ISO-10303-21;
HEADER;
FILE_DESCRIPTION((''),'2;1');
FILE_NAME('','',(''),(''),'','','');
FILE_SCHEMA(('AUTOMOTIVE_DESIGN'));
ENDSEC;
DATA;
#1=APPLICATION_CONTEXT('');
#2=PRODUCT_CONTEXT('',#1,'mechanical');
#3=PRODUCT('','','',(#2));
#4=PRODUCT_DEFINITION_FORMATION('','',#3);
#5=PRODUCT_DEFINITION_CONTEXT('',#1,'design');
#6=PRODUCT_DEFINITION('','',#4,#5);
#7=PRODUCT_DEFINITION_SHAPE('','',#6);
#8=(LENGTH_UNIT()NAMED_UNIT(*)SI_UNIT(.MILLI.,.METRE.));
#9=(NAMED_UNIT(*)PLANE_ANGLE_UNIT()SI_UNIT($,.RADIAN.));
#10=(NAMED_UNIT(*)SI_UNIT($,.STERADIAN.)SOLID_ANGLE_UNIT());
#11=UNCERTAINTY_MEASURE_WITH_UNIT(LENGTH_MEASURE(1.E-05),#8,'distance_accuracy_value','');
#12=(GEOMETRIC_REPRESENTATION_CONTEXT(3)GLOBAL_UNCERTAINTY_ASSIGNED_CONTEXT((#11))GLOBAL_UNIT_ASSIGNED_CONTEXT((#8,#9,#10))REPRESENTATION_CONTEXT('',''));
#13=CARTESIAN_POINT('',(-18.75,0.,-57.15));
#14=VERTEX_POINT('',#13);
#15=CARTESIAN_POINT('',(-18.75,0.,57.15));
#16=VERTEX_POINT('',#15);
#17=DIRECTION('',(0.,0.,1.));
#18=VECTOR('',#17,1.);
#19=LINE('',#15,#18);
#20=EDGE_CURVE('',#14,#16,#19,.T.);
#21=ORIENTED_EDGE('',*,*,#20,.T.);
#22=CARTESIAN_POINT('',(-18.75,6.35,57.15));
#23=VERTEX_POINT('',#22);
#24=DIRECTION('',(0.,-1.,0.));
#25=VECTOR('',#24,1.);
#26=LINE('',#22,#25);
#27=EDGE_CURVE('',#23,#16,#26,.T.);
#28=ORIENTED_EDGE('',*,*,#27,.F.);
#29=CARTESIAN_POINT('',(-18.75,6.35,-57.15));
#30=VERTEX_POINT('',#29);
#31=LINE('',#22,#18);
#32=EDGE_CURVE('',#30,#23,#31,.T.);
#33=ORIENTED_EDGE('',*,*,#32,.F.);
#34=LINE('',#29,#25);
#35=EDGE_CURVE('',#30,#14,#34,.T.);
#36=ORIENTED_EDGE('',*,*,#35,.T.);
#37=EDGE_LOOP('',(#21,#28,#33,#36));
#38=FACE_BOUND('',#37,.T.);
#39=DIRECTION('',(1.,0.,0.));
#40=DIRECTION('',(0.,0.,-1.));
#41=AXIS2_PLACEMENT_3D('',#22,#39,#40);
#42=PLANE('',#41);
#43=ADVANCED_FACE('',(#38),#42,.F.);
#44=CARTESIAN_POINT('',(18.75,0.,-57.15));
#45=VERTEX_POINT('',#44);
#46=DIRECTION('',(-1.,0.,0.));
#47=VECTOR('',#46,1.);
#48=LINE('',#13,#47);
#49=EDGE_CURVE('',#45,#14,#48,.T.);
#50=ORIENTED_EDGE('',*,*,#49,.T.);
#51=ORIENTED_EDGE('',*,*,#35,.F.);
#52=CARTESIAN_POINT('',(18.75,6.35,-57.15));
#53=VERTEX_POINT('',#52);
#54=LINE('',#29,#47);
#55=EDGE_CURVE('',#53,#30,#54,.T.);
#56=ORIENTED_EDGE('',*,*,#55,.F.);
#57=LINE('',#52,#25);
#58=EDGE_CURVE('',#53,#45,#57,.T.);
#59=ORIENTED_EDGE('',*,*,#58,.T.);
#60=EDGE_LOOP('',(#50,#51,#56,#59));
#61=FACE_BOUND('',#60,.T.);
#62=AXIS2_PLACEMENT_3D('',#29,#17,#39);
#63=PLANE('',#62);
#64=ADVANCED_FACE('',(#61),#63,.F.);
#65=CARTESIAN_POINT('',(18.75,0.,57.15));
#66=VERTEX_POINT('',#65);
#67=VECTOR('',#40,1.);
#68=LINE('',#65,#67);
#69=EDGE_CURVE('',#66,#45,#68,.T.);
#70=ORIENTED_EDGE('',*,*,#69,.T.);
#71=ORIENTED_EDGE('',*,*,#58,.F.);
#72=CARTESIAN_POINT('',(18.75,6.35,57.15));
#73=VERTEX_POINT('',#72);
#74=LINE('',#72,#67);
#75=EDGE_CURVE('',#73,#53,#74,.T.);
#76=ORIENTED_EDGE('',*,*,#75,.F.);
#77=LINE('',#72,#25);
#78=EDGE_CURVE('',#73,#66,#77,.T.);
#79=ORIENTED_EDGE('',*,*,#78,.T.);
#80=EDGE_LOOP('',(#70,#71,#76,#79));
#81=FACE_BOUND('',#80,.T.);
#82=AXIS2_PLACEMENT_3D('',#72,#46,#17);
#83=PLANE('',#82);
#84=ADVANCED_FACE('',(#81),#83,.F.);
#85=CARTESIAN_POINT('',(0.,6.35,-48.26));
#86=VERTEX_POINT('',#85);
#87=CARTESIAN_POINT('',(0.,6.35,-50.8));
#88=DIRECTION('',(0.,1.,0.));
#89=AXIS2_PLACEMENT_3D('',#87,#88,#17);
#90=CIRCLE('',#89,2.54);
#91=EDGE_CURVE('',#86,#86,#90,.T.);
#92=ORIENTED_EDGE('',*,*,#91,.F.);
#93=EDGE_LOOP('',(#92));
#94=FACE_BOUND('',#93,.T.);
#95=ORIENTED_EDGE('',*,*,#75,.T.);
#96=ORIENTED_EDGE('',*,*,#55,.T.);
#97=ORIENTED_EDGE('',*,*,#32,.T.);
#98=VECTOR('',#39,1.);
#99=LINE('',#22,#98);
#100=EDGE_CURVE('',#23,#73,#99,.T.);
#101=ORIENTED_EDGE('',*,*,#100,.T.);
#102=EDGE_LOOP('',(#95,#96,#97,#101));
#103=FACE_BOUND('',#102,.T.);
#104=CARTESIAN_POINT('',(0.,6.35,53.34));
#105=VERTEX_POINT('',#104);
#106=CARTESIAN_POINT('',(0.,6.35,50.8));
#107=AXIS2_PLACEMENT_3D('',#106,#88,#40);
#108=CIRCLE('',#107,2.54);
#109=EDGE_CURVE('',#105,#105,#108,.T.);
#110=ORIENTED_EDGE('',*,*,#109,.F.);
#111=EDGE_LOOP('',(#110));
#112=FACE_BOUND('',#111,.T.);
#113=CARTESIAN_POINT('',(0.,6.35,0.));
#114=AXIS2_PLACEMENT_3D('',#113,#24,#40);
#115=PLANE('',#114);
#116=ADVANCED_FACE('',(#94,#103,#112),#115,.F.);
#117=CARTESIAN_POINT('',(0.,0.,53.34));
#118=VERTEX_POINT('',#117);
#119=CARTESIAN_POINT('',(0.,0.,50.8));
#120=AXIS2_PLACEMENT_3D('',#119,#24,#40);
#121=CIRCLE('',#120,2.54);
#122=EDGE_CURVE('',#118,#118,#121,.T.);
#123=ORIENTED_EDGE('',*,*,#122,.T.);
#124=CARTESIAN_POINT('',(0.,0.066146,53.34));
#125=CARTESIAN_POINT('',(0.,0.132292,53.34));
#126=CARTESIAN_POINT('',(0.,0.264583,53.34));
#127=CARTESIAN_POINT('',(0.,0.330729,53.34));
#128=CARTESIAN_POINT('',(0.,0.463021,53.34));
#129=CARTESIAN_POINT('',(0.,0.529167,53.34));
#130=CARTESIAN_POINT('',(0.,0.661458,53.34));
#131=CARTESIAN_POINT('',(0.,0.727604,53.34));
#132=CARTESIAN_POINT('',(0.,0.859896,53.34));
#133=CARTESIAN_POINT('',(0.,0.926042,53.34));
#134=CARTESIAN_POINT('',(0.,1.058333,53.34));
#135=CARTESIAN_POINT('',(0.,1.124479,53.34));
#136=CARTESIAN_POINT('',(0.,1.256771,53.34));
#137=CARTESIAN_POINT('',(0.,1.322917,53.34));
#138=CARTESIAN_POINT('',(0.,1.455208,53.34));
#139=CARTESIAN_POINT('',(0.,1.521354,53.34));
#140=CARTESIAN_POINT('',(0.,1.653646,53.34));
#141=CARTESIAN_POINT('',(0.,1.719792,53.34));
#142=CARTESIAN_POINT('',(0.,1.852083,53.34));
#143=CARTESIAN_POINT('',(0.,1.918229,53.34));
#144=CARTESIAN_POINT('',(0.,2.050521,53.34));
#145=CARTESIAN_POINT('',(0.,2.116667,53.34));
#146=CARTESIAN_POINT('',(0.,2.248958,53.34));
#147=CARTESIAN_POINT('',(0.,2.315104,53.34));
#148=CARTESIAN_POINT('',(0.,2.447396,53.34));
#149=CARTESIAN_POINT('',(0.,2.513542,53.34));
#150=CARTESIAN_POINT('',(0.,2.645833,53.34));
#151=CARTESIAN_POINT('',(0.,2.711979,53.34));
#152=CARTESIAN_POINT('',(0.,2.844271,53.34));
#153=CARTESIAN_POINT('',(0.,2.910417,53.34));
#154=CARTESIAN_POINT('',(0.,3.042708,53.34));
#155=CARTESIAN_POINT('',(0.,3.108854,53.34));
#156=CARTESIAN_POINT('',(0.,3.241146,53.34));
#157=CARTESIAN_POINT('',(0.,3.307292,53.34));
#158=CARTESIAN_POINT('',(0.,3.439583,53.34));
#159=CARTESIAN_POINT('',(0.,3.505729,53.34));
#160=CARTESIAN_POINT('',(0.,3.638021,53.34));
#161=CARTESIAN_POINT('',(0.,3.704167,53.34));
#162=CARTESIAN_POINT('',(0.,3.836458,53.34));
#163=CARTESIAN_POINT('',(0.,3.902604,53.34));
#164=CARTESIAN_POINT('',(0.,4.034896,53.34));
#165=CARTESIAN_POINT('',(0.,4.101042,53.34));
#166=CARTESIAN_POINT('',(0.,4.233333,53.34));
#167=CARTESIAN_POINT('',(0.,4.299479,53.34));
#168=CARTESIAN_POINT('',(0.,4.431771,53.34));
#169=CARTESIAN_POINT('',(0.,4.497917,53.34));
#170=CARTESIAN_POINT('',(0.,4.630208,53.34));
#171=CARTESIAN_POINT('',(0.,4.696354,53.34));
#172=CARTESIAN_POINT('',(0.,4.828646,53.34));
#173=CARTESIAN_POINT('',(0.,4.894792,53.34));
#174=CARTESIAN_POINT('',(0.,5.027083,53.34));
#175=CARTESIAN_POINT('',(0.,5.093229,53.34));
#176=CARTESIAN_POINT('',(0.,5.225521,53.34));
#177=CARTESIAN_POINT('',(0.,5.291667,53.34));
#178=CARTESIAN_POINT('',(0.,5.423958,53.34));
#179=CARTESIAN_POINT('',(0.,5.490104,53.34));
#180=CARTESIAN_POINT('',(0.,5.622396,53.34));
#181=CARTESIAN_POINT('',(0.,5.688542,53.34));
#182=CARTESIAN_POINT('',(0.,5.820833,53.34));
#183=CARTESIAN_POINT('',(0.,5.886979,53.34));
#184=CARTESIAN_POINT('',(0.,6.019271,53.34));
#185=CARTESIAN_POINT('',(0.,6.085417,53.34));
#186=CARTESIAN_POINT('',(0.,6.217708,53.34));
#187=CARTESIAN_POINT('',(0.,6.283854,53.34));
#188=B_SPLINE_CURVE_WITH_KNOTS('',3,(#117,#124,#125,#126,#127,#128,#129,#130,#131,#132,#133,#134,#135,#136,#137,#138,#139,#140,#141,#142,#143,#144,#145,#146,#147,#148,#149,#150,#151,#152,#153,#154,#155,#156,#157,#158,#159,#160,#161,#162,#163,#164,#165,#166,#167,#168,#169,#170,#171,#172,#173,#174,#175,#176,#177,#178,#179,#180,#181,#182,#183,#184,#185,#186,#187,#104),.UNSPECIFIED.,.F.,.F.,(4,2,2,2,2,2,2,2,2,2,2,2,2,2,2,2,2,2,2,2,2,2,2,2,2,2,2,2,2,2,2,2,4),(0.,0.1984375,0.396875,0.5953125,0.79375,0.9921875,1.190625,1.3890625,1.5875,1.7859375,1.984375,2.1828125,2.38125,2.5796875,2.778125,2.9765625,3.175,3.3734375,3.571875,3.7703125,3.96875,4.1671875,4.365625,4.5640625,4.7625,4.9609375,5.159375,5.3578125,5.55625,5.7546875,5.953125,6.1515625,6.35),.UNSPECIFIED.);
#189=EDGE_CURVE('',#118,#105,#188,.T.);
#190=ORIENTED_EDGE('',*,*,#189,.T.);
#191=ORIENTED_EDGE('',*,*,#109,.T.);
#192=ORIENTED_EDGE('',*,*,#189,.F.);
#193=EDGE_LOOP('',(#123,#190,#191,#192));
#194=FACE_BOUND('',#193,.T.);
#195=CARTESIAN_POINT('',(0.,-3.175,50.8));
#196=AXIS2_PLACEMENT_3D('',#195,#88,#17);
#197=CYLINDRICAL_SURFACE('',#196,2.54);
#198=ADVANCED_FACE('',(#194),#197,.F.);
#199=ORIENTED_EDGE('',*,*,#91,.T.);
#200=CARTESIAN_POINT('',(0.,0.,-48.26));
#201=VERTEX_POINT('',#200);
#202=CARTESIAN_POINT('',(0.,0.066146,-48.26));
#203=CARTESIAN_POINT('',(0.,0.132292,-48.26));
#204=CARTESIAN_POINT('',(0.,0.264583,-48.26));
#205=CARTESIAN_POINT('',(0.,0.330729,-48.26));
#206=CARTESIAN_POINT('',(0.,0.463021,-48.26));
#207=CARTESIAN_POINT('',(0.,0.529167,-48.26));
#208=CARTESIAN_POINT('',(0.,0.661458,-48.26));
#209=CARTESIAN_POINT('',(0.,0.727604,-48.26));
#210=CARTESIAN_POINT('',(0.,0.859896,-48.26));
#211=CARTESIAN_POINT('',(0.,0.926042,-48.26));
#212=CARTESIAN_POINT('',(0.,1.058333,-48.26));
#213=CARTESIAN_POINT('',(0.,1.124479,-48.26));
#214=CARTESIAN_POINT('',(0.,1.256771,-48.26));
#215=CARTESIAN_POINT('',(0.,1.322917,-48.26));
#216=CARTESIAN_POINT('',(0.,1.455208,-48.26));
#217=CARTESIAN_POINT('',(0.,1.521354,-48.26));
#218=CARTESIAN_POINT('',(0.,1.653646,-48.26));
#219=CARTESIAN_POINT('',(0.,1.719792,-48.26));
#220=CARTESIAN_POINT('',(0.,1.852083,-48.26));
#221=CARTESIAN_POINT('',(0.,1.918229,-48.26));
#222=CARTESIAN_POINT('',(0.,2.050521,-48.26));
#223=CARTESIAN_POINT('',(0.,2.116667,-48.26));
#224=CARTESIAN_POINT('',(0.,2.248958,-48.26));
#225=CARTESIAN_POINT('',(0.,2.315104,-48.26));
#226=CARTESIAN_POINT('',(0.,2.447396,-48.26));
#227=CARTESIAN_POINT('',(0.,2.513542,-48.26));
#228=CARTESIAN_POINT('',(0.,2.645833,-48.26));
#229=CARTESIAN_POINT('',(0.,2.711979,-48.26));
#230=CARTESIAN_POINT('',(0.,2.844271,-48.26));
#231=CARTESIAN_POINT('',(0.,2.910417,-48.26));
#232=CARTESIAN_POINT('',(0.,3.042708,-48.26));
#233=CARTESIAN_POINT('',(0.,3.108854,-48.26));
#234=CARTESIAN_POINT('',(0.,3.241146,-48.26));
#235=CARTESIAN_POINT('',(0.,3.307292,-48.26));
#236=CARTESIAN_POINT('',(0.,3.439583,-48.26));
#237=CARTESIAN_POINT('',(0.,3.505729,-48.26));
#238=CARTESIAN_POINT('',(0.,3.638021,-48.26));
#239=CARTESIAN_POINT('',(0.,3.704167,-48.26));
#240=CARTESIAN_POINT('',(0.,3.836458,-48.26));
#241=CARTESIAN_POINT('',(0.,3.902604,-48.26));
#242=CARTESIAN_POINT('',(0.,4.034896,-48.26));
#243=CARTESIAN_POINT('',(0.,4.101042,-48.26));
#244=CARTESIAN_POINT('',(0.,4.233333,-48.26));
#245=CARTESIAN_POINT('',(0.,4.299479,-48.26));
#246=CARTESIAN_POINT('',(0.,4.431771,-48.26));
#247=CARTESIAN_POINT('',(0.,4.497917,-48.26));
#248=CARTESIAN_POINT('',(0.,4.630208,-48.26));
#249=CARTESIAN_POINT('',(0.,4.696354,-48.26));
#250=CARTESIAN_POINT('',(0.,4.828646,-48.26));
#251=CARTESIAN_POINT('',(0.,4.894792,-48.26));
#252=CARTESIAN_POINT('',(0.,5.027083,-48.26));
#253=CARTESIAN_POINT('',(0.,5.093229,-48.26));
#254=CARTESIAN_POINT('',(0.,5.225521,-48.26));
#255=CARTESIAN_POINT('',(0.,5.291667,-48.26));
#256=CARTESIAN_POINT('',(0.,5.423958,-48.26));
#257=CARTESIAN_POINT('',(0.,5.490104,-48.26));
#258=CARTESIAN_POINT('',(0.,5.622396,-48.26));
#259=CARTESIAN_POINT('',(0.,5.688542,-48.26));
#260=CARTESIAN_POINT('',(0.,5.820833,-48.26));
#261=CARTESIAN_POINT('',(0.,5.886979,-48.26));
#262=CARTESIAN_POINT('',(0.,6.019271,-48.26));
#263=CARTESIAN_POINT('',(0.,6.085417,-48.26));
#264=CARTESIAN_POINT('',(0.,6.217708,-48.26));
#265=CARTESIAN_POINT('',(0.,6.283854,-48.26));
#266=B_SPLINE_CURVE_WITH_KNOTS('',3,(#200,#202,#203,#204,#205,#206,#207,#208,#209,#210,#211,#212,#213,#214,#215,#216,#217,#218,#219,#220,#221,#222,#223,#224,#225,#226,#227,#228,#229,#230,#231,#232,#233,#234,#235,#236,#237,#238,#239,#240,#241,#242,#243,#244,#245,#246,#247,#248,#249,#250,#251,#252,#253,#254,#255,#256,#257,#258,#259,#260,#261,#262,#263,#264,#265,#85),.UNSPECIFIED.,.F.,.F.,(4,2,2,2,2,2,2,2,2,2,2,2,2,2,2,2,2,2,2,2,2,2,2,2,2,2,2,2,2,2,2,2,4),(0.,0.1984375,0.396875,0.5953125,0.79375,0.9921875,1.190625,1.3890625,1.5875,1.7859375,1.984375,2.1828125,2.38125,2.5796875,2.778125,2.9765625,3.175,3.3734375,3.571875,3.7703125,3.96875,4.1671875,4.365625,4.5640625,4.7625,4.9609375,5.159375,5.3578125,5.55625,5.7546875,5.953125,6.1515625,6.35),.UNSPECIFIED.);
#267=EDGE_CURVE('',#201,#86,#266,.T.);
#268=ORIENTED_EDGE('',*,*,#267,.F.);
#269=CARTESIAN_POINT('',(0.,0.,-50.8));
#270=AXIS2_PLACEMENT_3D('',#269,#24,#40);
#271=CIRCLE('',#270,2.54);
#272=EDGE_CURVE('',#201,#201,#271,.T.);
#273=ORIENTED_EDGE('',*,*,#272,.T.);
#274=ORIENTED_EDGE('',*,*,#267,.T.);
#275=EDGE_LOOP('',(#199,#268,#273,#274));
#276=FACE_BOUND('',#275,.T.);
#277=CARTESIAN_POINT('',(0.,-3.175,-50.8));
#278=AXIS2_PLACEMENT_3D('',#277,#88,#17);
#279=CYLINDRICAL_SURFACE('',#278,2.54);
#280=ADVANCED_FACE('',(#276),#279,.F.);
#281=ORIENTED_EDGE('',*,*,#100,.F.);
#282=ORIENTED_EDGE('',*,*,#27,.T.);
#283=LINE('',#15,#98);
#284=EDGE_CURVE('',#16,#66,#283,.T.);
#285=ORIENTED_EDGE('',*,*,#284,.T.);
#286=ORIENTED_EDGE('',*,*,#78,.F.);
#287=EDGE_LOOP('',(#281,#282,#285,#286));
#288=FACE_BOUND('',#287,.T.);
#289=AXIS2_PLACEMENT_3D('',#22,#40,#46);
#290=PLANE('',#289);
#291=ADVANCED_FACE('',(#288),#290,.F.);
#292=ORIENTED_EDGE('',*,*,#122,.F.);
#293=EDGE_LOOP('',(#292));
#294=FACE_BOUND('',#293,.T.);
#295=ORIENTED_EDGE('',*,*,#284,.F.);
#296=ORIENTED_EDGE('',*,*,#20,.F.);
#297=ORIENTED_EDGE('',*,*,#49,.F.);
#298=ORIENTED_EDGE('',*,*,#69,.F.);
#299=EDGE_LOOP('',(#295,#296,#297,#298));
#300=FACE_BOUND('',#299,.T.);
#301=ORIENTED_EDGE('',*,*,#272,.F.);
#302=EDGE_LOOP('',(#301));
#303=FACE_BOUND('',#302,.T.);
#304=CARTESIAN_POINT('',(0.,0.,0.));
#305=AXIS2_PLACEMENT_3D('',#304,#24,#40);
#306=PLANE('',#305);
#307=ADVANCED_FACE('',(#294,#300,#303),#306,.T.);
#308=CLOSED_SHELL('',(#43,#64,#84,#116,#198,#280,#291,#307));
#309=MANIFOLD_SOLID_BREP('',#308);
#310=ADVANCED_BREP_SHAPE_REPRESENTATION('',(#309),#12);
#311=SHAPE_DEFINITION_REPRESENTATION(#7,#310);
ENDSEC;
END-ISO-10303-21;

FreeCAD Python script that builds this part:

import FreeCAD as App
import Part
import Sketcher

V = App.Vector
Q = App.Units.Quantity


def add_polygon(sketch, points):
    """Adds a closed chain of lines whose ends are joined by coincident constraints."""
    first, n = sketch.GeometryCount, len(points)
    for a, b in zip(points, points[1:] + points[:1]):
        sketch.addGeometry(Part.LineSegment(App.Vector(*a, 0), App.Vector(*b, 0)), False)
    for i in range(n):
        sketch.addConstraint(Sketcher.Constraint("Coincident", first + i, 2, first + (i + 1) % n, 1))

doc = App.newDocument("Part")
body = doc.addObject("PartDesign::Body", "Body")

# Sketch on XZ plane
sketch1 = body.newObject("Sketcher::SketchObject", "Sketch")
sketch1.AttachmentSupport = (doc.getObject("XZ_Plane"), [""])
sketch1.MapMode = "FlatFace"
add_polygon(sketch1, [(-19, -57), (-19, 57), (19, 57), (19, -57)])  # lines 0-3
sketch1.addConstraint([
    Sketcher.Constraint("Vertical", 0),
    Sketcher.Constraint("Horizontal", 1),
    Sketcher.Constraint("Vertical", 2),
    Sketcher.Constraint("Horizontal", 3),
    Sketcher.Constraint("Symmetric", 0, 2, 2, 2, -1, 1),
    Sketcher.Constraint("DistanceY", 0, 1, 0, 2, Q("4.5 in")),
    Sketcher.Constraint("DistanceX", 1, 1, 1, 2, Q("37.5 mm")),
])
pad1 = body.newObject("PartDesign::Pad", "Pad")
pad1.Profile = sketch1
pad1.Length = Q("0.25 in")
pad1.Reversed = True

# Sketch on XZ plane
sketch2 = body.newObject("Sketcher::SketchObject", "Sketch001")
sketch2.AttachmentSupport = (doc.getObject("XZ_Plane"), [""])
sketch2.MapMode = "FlatFace"
sketch2.AttachmentOffset = App.Placement(V(0, 0, -0.25 * 25.4), App.Rotation())
sketch2.addGeometry([
    Part.Circle(V(0, -50.8, 0), V(0, 0, 1), 2.5),
    Part.Circle(V(0, 50.8, 0), V(0, 0, 1), 2.5),
], False)
sketch2.addConstraint([
    Sketcher.Constraint("Equal", 0, 1),
    Sketcher.Constraint("Symmetric", 0, 3, 1, 3, -1, 1),
    Sketcher.Constraint("PointOnObject", 0, 3, -2),
    Sketcher.Constraint("Diameter", 0, Q("0.2 in")),
    Sketcher.Constraint("DistanceY", 0, 3, -1, 1, Q("2 in")),
])
pocket1 = body.newObject("PartDesign::Pocket", "Pocket")
pocket1.Profile = sketch2
pocket1.Length = Q("0.375 in")
pocket1.Reversed = True

doc.recompute()
